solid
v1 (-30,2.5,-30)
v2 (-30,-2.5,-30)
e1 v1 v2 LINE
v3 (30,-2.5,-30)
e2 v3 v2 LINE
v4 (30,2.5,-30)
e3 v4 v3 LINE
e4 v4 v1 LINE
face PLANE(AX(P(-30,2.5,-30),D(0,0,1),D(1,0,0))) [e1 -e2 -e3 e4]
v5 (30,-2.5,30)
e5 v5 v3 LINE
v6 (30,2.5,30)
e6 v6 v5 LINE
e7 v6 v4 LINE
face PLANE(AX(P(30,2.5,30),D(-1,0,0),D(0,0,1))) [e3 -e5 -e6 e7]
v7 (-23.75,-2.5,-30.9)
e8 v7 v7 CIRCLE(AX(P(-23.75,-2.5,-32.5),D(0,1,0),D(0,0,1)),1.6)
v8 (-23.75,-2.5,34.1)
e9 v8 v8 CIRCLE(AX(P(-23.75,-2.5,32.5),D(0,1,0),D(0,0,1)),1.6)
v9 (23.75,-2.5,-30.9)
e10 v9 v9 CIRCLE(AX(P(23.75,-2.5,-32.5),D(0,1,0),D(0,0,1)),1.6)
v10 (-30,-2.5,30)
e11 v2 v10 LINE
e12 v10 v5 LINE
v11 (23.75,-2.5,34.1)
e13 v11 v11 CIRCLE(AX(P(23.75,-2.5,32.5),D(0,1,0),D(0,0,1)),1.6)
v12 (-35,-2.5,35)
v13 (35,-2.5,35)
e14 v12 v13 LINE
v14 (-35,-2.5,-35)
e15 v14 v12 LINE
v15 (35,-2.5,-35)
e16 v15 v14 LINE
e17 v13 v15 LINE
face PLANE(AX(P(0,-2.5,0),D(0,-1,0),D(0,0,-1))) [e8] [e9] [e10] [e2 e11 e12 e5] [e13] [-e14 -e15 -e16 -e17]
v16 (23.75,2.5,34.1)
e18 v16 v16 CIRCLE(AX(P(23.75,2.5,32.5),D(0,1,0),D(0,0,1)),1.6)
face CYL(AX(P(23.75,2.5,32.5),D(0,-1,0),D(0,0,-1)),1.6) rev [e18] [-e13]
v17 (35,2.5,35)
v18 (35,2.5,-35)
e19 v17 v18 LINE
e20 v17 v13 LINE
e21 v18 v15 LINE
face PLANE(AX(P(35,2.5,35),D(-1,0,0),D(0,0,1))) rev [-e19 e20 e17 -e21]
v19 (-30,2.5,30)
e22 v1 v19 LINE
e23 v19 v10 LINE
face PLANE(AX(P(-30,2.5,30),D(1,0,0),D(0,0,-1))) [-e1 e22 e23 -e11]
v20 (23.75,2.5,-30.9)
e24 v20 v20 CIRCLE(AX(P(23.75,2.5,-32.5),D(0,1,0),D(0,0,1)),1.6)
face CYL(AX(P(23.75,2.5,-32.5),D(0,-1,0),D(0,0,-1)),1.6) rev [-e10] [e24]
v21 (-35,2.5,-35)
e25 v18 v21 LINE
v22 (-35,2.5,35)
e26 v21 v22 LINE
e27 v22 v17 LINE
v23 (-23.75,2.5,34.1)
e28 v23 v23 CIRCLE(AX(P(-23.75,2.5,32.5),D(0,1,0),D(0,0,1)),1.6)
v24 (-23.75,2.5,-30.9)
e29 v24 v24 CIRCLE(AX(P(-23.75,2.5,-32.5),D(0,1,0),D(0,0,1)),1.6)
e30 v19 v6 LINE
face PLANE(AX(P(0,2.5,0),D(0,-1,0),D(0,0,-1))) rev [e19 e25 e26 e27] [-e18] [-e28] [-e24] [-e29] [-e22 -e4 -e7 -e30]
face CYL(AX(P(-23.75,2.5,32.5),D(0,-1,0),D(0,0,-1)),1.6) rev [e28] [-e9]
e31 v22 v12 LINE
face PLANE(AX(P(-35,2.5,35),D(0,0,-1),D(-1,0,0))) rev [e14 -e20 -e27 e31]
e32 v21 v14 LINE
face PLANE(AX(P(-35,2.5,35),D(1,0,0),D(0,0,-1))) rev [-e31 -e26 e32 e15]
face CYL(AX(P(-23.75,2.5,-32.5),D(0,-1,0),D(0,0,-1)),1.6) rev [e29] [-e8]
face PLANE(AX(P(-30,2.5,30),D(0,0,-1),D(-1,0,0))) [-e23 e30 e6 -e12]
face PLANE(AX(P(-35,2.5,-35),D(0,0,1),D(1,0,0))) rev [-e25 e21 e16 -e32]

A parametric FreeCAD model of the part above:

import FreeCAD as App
import Part
import Sketcher
from FreeCAD import Vector
Q = App.Units.Quantity


def add_polygon(sketch, points):
    """Adds a closed chain of lines whose ends are joined by coincident constraints."""
    first, n = sketch.GeometryCount, len(points)
    for a, b in zip(points, points[1:] + points[:1]):
        sketch.addGeometry(Part.LineSegment(App.Vector(*a, 0), App.Vector(*b, 0)), False)
    for i in range(n):
        sketch.addConstraint(Sketcher.Constraint("Coincident", first + i, 2, first + (i + 1) % n, 1))

doc = App.newDocument("Part")
body = doc.addObject("PartDesign::Body", "Body")

sketch1 = body.newObject("Sketcher::SketchObject", "Sketch")
sketch1.AttachmentSupport = (doc.getObject("XZ_Plane"), [""])
sketch1.MapMode = "FlatFace"
add_polygon(sketch1, [(-35, -35), (-35, 35), (35, 35), (35, -35)])
sketch1.addGeometry(Part.Circle(Vector(-23.75, 32.5, 0), Vector(0, 0, 1), 1.6), False)
sketch1.addGeometry(Part.Circle(Vector(23.75, 32.5, 0), Vector(0, 0, 1), 1.6), False)
sketch1.addGeometry(Part.Circle(Vector(-23.75, -32.5, 0), Vector(0, 0, 1), 1.6), False)
add_polygon(sketch1, [(30, 30), (-30, 30), (-30, -30), (30, -30)])
sketch1.addGeometry(Part.Circle(Vector(23.75, -32.5, 0), Vector(0, 0, 1), 1.6), False)
sketch1.addConstraint([
    Sketcher.Constraint("Vertical", 0),
    Sketcher.Constraint("Horizontal", 1),
    Sketcher.Constraint("Vertical", 2),
    Sketcher.Constraint("Horizontal", 3),
    Sketcher.Constraint("Horizontal", 7),
    Sketcher.Constraint("Vertical", 8),
    Sketcher.Constraint("Horizontal", 9),
    Sketcher.Constraint("Vertical", 10),
    Sketcher.Constraint("Equal", 4, 5),
    Sketcher.Constraint("Equal", 5, 6),
    Sketcher.Constraint("Equal", 6, 11),
    Sketcher.Constraint("Symmetric", 5, 3, 6, 3, -1, 1),
    Sketcher.Constraint("Symmetric", 4, 3, 11, 3, -1, 1),
    Sketcher.Constraint("Symmetric", 0, 2, 2, 2, -1, 1),
    Sketcher.Constraint("Symmetric", 7, 2, 9, 2, -1, 1),
    Sketcher.Constraint("Symmetric", 4, 3, 5, 3, -2),
    Sketcher.Constraint("Equal", 3, 0),
    Sketcher.Constraint("Equal", 9, 8),
    Sketcher.Constraint("Diameter", 4, Q("3.2 mm")),
    Sketcher.Constraint("DistanceX", 1, 1, 1, 2, Q("70 mm")),
    Sketcher.Constraint("DistanceX", 7, 2, 7, 1, Q("60 mm")),
    Sketcher.Constraint("DistanceY", 6, 3, 4, 3, Q("65 mm")),
    Sketcher.Constraint("DistanceX", 4, 3, 5, 3, Q("47.5 mm")),
])
pad1 = body.newObject("PartDesign::Pad", "Pad")
pad1.Profile = sketch1
pad1.Length = 5
pad1.Midplane = True

doc.recompute()
